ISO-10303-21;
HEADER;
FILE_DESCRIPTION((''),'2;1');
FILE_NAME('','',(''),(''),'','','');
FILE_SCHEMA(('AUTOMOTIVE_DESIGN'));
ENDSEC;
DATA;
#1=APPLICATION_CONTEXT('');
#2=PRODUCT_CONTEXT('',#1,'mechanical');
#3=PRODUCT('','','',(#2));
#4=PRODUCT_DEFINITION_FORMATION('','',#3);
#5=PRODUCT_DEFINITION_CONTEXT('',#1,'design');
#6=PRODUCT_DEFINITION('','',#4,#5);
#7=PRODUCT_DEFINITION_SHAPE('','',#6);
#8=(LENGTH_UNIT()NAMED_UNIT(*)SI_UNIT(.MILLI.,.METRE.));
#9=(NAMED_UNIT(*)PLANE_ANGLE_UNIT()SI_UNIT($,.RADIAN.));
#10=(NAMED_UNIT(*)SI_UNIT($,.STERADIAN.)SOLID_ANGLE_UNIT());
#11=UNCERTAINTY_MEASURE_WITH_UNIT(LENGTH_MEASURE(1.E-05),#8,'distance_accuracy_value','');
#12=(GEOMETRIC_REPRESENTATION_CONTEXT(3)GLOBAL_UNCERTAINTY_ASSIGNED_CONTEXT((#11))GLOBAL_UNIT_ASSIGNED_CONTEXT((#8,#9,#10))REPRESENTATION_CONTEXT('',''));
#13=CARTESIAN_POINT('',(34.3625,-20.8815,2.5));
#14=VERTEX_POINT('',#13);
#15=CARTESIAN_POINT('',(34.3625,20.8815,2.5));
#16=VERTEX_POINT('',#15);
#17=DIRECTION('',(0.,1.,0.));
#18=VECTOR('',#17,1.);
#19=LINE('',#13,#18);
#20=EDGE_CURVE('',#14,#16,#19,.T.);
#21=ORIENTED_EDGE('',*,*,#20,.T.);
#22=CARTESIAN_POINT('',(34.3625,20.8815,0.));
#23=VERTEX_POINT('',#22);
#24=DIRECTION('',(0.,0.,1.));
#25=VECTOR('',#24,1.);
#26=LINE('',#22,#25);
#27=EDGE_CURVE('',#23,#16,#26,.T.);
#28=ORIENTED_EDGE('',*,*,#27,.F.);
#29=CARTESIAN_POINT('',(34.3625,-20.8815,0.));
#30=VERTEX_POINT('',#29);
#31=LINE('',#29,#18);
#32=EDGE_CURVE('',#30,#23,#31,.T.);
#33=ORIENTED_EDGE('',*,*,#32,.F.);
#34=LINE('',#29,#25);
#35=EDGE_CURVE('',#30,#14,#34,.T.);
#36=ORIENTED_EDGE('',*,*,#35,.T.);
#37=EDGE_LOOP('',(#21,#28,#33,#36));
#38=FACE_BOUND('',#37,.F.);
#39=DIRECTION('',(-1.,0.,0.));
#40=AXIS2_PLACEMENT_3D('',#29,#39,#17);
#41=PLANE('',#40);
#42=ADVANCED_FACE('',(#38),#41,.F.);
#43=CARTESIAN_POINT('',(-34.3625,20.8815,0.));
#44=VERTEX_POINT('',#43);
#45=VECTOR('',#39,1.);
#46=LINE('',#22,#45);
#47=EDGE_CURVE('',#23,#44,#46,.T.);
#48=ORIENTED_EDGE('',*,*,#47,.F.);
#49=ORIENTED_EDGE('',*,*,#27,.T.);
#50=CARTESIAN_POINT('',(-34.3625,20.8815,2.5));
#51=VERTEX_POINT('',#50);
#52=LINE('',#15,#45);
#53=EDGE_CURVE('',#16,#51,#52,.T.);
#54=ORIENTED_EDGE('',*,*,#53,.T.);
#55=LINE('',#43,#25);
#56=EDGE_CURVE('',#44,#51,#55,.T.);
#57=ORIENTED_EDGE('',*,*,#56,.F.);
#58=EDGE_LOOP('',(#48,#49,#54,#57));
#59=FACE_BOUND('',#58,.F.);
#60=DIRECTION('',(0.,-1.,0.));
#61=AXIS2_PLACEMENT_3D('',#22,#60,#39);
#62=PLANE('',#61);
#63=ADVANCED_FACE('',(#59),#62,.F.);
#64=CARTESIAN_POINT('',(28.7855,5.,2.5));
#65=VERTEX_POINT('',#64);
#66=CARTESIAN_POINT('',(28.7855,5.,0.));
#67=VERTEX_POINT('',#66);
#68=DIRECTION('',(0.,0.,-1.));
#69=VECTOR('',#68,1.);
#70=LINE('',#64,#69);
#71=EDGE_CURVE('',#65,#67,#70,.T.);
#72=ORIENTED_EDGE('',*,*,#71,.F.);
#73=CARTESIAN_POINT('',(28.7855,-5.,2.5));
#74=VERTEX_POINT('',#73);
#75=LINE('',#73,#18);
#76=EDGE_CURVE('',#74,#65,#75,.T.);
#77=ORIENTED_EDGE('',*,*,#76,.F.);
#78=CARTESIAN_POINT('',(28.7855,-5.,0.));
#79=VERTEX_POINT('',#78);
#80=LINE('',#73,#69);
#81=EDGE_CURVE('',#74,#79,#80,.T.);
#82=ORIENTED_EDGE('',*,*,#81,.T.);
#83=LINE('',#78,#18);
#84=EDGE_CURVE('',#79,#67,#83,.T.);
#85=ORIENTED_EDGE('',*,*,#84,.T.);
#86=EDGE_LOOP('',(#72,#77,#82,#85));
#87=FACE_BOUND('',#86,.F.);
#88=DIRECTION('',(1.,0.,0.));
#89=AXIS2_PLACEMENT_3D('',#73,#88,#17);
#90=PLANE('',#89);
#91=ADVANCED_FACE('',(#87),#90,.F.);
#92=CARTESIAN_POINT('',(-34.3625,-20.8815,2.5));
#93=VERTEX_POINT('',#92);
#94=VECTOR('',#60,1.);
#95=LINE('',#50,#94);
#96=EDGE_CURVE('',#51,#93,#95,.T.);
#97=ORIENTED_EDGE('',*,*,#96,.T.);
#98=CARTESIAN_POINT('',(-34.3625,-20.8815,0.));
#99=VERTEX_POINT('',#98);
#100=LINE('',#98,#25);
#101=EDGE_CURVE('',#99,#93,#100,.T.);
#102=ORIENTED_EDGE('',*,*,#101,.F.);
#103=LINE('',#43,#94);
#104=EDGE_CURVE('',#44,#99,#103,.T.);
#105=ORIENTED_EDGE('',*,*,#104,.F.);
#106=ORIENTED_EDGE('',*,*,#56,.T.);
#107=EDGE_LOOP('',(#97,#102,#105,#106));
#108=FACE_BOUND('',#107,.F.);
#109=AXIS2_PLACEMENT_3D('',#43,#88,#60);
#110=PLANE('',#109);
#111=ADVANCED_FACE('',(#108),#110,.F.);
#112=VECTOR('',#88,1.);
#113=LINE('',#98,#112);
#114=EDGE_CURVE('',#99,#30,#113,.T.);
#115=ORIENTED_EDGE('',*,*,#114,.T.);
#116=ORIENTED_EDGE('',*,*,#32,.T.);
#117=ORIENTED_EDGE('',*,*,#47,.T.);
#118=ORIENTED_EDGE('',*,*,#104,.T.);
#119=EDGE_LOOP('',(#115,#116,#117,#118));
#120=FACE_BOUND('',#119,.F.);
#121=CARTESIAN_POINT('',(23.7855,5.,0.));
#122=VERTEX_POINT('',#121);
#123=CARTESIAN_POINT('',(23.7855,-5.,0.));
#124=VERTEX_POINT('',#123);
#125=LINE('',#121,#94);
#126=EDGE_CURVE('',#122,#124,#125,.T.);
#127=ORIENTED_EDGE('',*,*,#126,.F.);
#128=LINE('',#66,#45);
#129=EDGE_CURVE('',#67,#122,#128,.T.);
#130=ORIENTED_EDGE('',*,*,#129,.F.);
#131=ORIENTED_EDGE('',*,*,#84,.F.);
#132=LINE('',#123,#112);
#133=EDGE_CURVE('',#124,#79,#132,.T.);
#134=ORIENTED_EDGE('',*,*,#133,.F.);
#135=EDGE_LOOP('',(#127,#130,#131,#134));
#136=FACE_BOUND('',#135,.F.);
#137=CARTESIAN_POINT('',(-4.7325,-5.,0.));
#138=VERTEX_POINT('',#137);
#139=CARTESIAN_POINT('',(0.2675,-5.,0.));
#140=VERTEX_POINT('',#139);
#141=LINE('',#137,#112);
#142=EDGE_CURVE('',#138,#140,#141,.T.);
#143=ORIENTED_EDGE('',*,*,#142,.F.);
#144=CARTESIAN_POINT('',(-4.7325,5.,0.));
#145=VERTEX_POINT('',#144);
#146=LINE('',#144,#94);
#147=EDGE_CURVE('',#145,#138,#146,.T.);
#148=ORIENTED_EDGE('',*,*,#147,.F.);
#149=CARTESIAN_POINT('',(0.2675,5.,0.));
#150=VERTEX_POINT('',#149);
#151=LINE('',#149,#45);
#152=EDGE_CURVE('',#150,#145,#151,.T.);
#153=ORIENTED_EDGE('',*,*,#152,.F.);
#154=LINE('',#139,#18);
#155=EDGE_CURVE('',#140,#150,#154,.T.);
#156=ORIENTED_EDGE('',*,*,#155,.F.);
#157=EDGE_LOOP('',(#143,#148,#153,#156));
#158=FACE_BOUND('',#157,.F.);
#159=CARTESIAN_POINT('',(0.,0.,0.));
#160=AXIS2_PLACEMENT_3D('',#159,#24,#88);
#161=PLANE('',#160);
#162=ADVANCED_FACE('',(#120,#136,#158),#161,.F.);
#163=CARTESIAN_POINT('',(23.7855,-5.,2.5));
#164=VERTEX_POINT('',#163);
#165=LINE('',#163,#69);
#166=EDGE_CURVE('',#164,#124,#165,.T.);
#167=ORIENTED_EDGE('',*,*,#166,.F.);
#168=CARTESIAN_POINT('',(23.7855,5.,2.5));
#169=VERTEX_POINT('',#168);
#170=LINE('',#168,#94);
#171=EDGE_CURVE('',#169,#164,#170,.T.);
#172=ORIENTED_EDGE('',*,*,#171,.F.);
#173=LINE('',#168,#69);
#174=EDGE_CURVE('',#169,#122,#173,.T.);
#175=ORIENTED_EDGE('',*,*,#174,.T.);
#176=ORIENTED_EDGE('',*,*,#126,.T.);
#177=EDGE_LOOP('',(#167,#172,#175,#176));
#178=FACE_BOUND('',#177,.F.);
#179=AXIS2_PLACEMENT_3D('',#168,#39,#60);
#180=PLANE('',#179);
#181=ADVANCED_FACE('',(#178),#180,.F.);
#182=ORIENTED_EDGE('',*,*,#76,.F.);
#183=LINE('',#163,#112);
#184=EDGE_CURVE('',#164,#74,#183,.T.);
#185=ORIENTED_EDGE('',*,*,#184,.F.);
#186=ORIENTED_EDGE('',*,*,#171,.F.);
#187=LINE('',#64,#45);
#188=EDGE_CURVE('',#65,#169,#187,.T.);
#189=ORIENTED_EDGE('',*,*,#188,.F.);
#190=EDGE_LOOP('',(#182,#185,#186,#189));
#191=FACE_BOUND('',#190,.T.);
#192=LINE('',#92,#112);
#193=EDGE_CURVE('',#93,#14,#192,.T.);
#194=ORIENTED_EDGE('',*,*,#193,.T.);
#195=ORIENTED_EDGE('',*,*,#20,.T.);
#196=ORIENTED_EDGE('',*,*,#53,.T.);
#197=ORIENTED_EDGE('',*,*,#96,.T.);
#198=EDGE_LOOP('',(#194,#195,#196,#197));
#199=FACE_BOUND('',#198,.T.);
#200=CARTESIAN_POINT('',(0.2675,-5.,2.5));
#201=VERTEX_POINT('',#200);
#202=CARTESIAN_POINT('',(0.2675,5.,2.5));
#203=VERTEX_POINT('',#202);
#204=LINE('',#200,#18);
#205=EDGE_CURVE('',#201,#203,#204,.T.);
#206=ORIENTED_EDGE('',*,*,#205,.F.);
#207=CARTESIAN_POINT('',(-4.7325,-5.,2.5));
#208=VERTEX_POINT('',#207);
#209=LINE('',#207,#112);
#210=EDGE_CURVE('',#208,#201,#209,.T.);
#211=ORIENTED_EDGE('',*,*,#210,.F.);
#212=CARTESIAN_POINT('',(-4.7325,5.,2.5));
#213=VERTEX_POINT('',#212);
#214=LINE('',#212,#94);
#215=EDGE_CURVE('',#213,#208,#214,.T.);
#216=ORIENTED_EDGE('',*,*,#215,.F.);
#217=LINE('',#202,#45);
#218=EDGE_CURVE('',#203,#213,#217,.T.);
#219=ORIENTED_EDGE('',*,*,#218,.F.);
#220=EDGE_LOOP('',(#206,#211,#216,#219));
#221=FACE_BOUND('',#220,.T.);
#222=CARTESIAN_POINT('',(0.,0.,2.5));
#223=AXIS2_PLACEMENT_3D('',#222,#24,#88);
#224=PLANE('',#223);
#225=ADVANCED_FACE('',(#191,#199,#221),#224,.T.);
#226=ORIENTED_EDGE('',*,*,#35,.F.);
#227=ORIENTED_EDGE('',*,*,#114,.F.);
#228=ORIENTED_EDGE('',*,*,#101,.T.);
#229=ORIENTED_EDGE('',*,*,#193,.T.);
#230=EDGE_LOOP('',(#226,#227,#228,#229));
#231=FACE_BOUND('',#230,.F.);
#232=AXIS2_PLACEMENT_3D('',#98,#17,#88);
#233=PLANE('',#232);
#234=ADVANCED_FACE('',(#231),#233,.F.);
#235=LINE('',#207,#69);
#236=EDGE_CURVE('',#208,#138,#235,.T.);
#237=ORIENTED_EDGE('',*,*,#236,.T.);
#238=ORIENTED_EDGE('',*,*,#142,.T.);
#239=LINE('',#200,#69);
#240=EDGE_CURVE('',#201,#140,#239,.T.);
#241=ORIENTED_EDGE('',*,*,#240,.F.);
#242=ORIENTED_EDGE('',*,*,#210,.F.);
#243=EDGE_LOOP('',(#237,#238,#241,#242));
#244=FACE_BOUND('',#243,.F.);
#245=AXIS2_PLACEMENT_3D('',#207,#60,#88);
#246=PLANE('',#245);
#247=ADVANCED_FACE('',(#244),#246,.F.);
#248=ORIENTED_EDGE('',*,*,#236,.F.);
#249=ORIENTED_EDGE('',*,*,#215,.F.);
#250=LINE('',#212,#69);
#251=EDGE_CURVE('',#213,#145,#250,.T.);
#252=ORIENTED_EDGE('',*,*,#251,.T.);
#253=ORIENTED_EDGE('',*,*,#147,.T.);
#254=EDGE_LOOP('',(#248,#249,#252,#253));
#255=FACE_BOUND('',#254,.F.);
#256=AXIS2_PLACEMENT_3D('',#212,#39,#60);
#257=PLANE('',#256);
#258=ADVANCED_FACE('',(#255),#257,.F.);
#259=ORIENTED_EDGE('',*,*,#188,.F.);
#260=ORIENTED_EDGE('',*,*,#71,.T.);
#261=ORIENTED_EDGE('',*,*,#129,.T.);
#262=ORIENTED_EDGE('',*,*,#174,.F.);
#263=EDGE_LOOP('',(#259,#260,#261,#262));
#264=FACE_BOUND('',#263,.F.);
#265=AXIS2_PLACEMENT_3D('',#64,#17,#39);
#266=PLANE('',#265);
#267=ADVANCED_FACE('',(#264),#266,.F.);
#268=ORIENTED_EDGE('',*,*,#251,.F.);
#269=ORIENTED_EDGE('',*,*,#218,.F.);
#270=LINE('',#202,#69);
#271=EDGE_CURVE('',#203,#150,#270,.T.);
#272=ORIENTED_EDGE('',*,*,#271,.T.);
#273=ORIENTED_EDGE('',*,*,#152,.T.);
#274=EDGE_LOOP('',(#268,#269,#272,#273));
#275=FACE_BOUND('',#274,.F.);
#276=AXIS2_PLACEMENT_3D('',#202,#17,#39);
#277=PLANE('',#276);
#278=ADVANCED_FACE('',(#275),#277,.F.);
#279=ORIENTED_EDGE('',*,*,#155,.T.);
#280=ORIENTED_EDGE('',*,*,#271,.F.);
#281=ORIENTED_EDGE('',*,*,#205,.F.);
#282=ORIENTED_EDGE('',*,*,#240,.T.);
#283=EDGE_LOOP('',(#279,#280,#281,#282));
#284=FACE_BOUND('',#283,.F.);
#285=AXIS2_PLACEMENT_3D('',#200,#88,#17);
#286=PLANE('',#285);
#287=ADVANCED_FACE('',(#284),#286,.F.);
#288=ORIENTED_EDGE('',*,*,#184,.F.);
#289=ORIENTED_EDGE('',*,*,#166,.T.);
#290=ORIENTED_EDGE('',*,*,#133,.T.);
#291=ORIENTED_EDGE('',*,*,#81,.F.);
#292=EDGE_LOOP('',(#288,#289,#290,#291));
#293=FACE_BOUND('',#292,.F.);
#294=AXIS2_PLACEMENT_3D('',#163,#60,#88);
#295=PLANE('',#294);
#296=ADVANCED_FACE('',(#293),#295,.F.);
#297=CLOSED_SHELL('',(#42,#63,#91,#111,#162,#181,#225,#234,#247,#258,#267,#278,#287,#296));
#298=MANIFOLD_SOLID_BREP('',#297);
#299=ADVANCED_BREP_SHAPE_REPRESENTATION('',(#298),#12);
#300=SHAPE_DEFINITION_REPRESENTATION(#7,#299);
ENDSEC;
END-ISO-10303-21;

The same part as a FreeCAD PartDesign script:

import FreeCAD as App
import Part
import Sketcher

doc = App.newDocument("Part")
body = doc.addObject("PartDesign::Body", "Body")

# Sketch on XY plane
sketch1 = body.newObject("Sketcher::SketchObject", "Sketch")
sketch1.AttachmentSupport = (doc.getObject("XY_Plane"), [""])
sketch1.MapMode = "FlatFace"
sketch1.addGeometry([
    Part.LineSegment(App.Vector(34, -21, 0), App.Vector(34, 21, 0)),
    Part.LineSegment(App.Vector(34, 21, 0), App.Vector(-34, 21, 0)),
    Part.LineSegment(App.Vector(-34, 21, 0), App.Vector(-34, -21, 0)),
    Part.LineSegment(App.Vector(-34, -21, 0), App.Vector(34, -21, 0)),
], False)
sketch1.addConstraint([
    Sketcher.Constraint("Coincident", 0, 2, 1, 1),
    Sketcher.Constraint("Coincident", 1, 2, 2, 1),
    Sketcher.Constraint("Coincident", 2, 2, 3, 1),
    Sketcher.Constraint("Coincident", 3, 2, 0, 1),
    Sketcher.Constraint("Vertical", 0),
    Sketcher.Constraint("Horizontal", 1),
    Sketcher.Constraint("Vertical", 2),
    Sketcher.Constraint("Horizontal", 3),
    Sketcher.Constraint("Symmetric", 0, 2, 2, 2, -1, 1),
    Sketcher.Constraint("DistanceX", 1, 2, 1, 1, 68.725),
    Sketcher.Constraint("DistanceY", 0, 1, 0, 2, 41.763),
])
pad1 = body.newObject("PartDesign::Pad", "Pad")
pad1.Profile = sketch1
pad1.Length = 2.5

# Sketch on XY plane
sketch2 = body.newObject("Sketcher::SketchObject", "Sketch001")
sketch2.AttachmentSupport = (doc.getObject("XY_Plane"), [""])
sketch2.MapMode = "FlatFace"
sketch2.AttachmentOffset = App.Placement(App.Vector(0, 0, 2.5), App.Rotation())
sketch2.addGeometry([
    Part.LineSegment(App.Vector(0, -5, 0), App.Vector(0, 5, 0)),  # 0
    Part.LineSegment(App.Vector(0, 5, 0), App.Vector(-5, 5, 0)),  # 1
    Part.LineSegment(App.Vector(-5, 5, 0), App.Vector(-5, -5, 0)),  # 2
    Part.LineSegment(App.Vector(-5, -5, 0), App.Vector(0, -5, 0)),  # 3
    Part.LineSegment(App.Vector(29, -5, 0), App.Vector(29, 5, 0)),  # 4
    Part.LineSegment(App.Vector(29, 5, 0), App.Vector(24, 5, 0)),  # 5
    Part.LineSegment(App.Vector(24, 5, 0), App.Vector(24, -5, 0)),  # 6
    Part.LineSegment(App.Vector(24, -5, 0), App.Vector(29, -5, 0)),  # 7
], False)
sketch2.addConstraint([
    Sketcher.Constraint("Coincident", 0, 2, 1, 1),
    Sketcher.Constraint("Coincident", 1, 2, 2, 1),
    Sketcher.Constraint("Coincident", 2, 2, 3, 1),
    Sketcher.Constraint("Coincident", 3, 2, 0, 1),
    Sketcher.Constraint("Coincident", 4, 2, 5, 1),
    Sketcher.Constraint("Coincident", 5, 2, 6, 1),
    Sketcher.Constraint("Coincident", 6, 2, 7, 1),
    Sketcher.Constraint("Coincident", 7, 2, 4, 1),
    Sketcher.Constraint("Vertical", 0),
    Sketcher.Constraint("Horizontal", 1),
    Sketcher.Constraint("Vertical", 2),
    Sketcher.Constraint("Horizontal", 3),
    Sketcher.Constraint("Vertical", 4),
    Sketcher.Constraint("Horizontal", 5),
    Sketcher.Constraint("Vertical", 6),
    Sketcher.Constraint("Horizontal", 7),
    Sketcher.Constraint("Horizontal", 1, 2, 4, 2),
    Sketcher.Constraint("Horizontal", 3, 2, 6, 2),
    Sketcher.Constraint("Equal", 3, 5),
    Sketcher.Constraint("DistanceX", 1, 2, 1, 1, 5.0),
    Sketcher.Constraint("DistanceY", 0, 1, 0, 2, 10.0),
    Sketcher.Constraint("DistanceY", -1, 1, 0, 2, 5.0),
    Sketcher.Constraint("DistanceX", 0, 2, 4, 2, 28.518),
    Sketcher.Constraint("DistanceX", -1, 1, 0, 2, 0.2675),
])
pocket1 = body.newObject("PartDesign::Pocket", "Pocket")
pocket1.Profile = sketch2
pocket1.Length = 2.5

doc.recompute()
